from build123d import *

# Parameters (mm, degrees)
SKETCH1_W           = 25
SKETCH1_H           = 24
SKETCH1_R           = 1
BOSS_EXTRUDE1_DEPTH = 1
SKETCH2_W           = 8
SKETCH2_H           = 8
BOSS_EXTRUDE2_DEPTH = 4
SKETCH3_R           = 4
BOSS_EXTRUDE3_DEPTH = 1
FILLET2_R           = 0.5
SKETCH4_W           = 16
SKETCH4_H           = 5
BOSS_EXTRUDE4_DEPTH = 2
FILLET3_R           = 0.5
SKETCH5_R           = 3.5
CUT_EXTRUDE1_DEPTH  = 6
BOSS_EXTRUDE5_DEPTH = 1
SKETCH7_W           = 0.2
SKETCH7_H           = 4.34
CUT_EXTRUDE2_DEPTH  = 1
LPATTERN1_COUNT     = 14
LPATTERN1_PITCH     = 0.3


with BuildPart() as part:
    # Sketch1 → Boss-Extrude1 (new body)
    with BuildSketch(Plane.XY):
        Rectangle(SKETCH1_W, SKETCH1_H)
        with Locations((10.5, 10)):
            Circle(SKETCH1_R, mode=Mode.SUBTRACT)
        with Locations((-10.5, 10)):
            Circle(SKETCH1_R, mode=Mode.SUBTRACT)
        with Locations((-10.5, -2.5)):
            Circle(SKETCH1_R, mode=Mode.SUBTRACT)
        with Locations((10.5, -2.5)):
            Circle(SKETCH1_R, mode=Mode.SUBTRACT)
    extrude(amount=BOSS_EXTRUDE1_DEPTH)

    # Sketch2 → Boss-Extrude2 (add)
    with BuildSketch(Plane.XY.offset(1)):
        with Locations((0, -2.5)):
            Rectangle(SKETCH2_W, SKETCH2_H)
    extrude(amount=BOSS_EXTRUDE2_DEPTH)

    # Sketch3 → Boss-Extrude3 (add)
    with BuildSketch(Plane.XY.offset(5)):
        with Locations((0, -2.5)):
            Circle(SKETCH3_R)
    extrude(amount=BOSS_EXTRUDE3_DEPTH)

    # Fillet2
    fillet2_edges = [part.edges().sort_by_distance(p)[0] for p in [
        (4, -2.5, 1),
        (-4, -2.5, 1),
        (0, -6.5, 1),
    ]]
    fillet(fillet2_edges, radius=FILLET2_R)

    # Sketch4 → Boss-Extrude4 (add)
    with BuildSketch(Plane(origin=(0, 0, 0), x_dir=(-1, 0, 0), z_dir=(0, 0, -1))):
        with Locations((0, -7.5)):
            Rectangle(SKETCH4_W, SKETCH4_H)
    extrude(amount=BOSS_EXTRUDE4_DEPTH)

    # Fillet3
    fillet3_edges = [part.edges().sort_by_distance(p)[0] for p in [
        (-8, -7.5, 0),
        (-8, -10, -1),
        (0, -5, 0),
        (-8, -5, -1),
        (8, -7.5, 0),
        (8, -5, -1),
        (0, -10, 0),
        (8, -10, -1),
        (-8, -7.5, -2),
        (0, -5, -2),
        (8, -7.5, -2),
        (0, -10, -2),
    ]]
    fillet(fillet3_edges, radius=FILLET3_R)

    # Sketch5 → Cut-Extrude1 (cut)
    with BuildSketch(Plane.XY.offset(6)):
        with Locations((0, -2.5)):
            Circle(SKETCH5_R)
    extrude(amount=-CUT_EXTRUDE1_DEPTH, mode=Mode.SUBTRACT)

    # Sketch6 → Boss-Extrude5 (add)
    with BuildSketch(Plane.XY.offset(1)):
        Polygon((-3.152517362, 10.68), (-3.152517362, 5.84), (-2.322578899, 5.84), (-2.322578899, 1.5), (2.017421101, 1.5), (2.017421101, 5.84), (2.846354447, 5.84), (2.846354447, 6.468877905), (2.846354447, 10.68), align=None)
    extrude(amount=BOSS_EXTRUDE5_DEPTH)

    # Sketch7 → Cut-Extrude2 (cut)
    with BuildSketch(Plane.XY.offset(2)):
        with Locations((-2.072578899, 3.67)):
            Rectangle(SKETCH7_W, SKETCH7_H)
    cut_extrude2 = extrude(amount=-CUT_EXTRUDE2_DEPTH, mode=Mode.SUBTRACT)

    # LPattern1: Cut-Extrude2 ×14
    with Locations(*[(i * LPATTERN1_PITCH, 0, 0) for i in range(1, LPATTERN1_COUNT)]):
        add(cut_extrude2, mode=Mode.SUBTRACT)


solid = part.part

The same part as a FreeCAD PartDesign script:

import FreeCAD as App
import Part
import Sketcher


def edges_at(feature, points):
    """Names of the edges that pass closest to the given points."""
    edges = feature.Shape.Edges
    near = lambda p: min(range(len(edges)), key=lambda i: edges[i].distToShape(Part.Vertex(*p))[0])
    return sorted({f"Edge{near(p) + 1}" for p in points})

doc = App.newDocument("Part")
body = doc.addObject("PartDesign::Body", "Body")

sketch1 = body.newObject("Sketcher::SketchObject", "Sketch")
sketch1.AttachmentSupport = (doc.getObject("XY_Plane"), [""])
sketch1.MapMode = "FlatFace"
sketch1.addGeometry(Part.LineSegment(App.Vector(-12.5, 12, 0), App.Vector(-12.5, -12, 0)), False)
sketch1.addGeometry(Part.LineSegment(App.Vector(-12.5, -12, 0), App.Vector(12.5, -12, 0)), False)
sketch1.addGeometry(Part.LineSegment(App.Vector(12.5, -12, 0), App.Vector(12.5, 12, 0)), False)
sketch1.addGeometry(Part.LineSegment(App.Vector(12.5, 12, 0), App.Vector(-12.5, 12, 0)), False)
sketch1.addGeometry(Part.Circle(App.Vector(-10.5, -2.5, 0), App.Vector(0, 0, 1), 1), False)
sketch1.addGeometry(Part.Circle(App.Vector(10.5, -2.5, 0), App.Vector(0, 0, 1), 1), False)
sketch1.addGeometry(Part.Circle(App.Vector(-10.5, 10, 0), App.Vector(0, 0, 1), 1), False)
sketch1.addGeometry(Part.Circle(App.Vector(10.5, 10, 0), App.Vector(0, 0, 1), 1), False)
sketch1.addConstraint(Sketcher.Constraint("Coincident", 0, 2, 1, 1))
sketch1.addConstraint(Sketcher.Constraint("Coincident", 1, 2, 2, 1))
sketch1.addConstraint(Sketcher.Constraint("Coincident", 2, 2, 3, 1))
sketch1.addConstraint(Sketcher.Constraint("Coincident", 3, 2, 0, 1))
sketch1.addConstraint(Sketcher.Constraint("Vertical", 0))
sketch1.addConstraint(Sketcher.Constraint("Horizontal", 1))
sketch1.addConstraint(Sketcher.Constraint("Vertical", 2))
sketch1.addConstraint(Sketcher.Constraint("Horizontal", 3))
sketch1.addConstraint(Sketcher.Constraint("Equal", 4, 5))
sketch1.addConstraint(Sketcher.Constraint("Equal", 5, 6))
sketch1.addConstraint(Sketcher.Constraint("Equal", 6, 7))
sketch1.addConstraint(Sketcher.Constraint("Symmetric", 0, 2, 2, 2, -1, 1))
sketch1.addConstraint(Sketcher.Constraint("Symmetric", 4, 3, 5, 3, -2))
sketch1.addConstraint(Sketcher.Constraint("Symmetric", 6, 3, 7, 3, -2))
sketch1.addConstraint(Sketcher.Constraint("Vertical", 4, 3, 6, 3))
sketch1.addConstraint(Sketcher.Constraint("Diameter", 4, 2.0))
sketch1.addConstraint(Sketcher.Constraint("DistanceX", 1, 1, 1, 2, 25.0))
sketch1.addConstraint(Sketcher.Constraint("DistanceY", 0, 2, 0, 1, 24.0))
sketch1.addConstraint(Sketcher.Constraint("DistanceY", -1, 1, 6, 3, 10.0))
sketch1.addConstraint(Sketcher.Constraint("DistanceX", 4, 3, 5, 3, 21.0))
sketch1.addConstraint(Sketcher.Constraint("DistanceY", 4, 3, -1, 1, 2.5))
pad1 = body.newObject("PartDesign::Pad", "Pad")
pad1.Profile = sketch1
pad1.Length = 1

sketch2 = body.newObject("Sketcher::SketchObject", "Sketch001")
sketch2.AttachmentSupport = (doc.getObject("XY_Plane"), [""])
sketch2.MapMode = "FlatFace"
sketch2.AttachmentOffset = App.Placement(App.Vector(0, 0, 1), App.Rotation())
sketch2.addGeometry(Part.LineSegment(App.Vector(-4, 1.5, 0), App.Vector(-4, -6.5, 0)), False)
sketch2.addGeometry(Part.LineSegment(App.Vector(-4, -6.5, 0), App.Vector(4, -6.5, 0)), False)
sketch2.addGeometry(Part.LineSegment(App.Vector(4, -6.5, 0), App.Vector(4, 1.5, 0)), False)
sketch2.addGeometry(Part.LineSegment(App.Vector(4, 1.5, 0), App.Vector(-4, 1.5, 0)), False)
sketch2.addConstraint(Sketcher.Constraint("Coincident", 0, 2, 1, 1))
sketch2.addConstraint(Sketcher.Constraint("Coincident", 1, 2, 2, 1))
sketch2.addConstraint(Sketcher.Constraint("Coincident", 2, 2, 3, 1))
sketch2.addConstraint(Sketcher.Constraint("Coincident", 3, 2, 0, 1))
sketch2.addConstraint(Sketcher.Constraint("Vertical", 0))
sketch2.addConstraint(Sketcher.Constraint("Horizontal", 1))
sketch2.addConstraint(Sketcher.Constraint("Vertical", 2))
sketch2.addConstraint(Sketcher.Constraint("Horizontal", 3))
sketch2.addConstraint(Sketcher.Constraint("Equal", 3, 0))
sketch2.addConstraint(Sketcher.Constraint("DistanceX", 1, 1, 1, 2, 8.0))
sketch2.addConstraint(Sketcher.Constraint("DistanceX", 0, 2, -1, 1, 4.0))
sketch2.addConstraint(Sketcher.Constraint("DistanceY", 0, 2, -1, 1, 6.5))
pad2 = body.newObject("PartDesign::Pad", "Pad001")
pad2.Profile = sketch2
pad2.Length = 4

sketch3 = body.newObject("Sketcher::SketchObject", "Sketch002")
sketch3.AttachmentSupport = (doc.getObject("XY_Plane"), [""])
sketch3.MapMode = "FlatFace"
sketch3.AttachmentOffset = App.Placement(App.Vector(0, 0, 5), App.Rotation())
sketch3.addGeometry(Part.Circle(App.Vector(0, -2.5, 0), App.Vector(0, 0, 1), 4), False)
sketch3.addConstraint(Sketcher.Constraint("PointOnObject", 0, 3, -2))
sketch3.addConstraint(Sketcher.Constraint("Diameter", 0, 8.0))
sketch3.addConstraint(Sketcher.Constraint("DistanceY", 0, 3, -1, 1, 2.5))
pad3 = body.newObject("PartDesign::Pad", "Pad002")
pad3.Profile = sketch3
pad3.Length = 1
doc.recompute()

fillet = body.newObject("PartDesign::Fillet", "Fillet")
fillet.Base = (pad3, edges_at(pad3, [(4, -2.5, 1), (-4, -2.5, 1), (0, -6.5, 1)]))
fillet.Radius = 0.5

sketch4 = body.newObject("Sketcher::SketchObject", "Sketch003")
sketch4.AttachmentSupport = (doc.getObject("XY_Plane"), [""])
sketch4.MapMode = "FlatFace"
sketch4.addGeometry(Part.LineSegment(App.Vector(8, -5, 0), App.Vector(8, -10, 0)), False)
sketch4.addGeometry(Part.LineSegment(App.Vector(8, -10, 0), App.Vector(-8, -10, 0)), False)
sketch4.addGeometry(Part.LineSegment(App.Vector(-8, -10, 0), App.Vector(-8, -5, 0)), False)
sketch4.addGeometry(Part.LineSegment(App.Vector(-8, -5, 0), App.Vector(8, -5, 0)), False)
sketch4.addConstraint(Sketcher.Constraint("Coincident", 0, 2, 1, 1))
sketch4.addConstraint(Sketcher.Constraint("Coincident", 1, 2, 2, 1))
sketch4.addConstraint(Sketcher.Constraint("Coincident", 2, 2, 3, 1))
sketch4.addConstraint(Sketcher.Constraint("Coincident", 3, 2, 0, 1))
sketch4.addConstraint(Sketcher.Constraint("Vertical", 0))
sketch4.addConstraint(Sketcher.Constraint("Horizontal", 1))
sketch4.addConstraint(Sketcher.Constraint("Vertical", 2))
sketch4.addConstraint(Sketcher.Constraint("Horizontal", 3))
sketch4.addConstraint(Sketcher.Constraint("DistanceX", 1, 2, 1, 1, 16.0))
sketch4.addConstraint(Sketcher.Constraint("DistanceY", 0, 2, 0, 1, 5.0))
sketch4.addConstraint(Sketcher.Constraint("DistanceX", -1, 1, 0, 2, 8.0))
sketch4.addConstraint(Sketcher.Constraint("DistanceY", 0, 2, -1, 1, 10.0))
pad4 = body.newObject("PartDesign::Pad", "Pad003")
pad4.Profile = sketch4
pad4.Length = 2
pad4.Reversed = True
doc.recompute()

fillet2 = body.newObject("PartDesign::Fillet", "Fillet001")
fillet2.Base = (pad4, edges_at(pad4, [
    (-8, -7.5, 0),
    (-8, -10, -1),
    (0, -5, 0),
    (-8, -5, -1),
    (8, -7.5, 0),
    (8, -5, -1),
    (0, -10, 0),
    (8, -10, -1),
    (-8, -7.5, -2),
    (0, -5, -2),
    (8, -7.5, -2),
    (0, -10, -2),
]))
fillet2.Radius = 0.5

sketch5 = body.newObject("Sketcher::SketchObject", "Sketch004")
sketch5.AttachmentSupport = (doc.getObject("XY_Plane"), [""])
sketch5.MapMode = "FlatFace"
sketch5.AttachmentOffset = App.Placement(App.Vector(0, 0, 6), App.Rotation())
sketch5.addGeometry(Part.Circle(App.Vector(0, -2.5, 0), App.Vector(0, 0, 1), 3.5), False)
sketch5.addConstraint(Sketcher.Constraint("PointOnObject", 0, 3, -2))
sketch5.addConstraint(Sketcher.Constraint("Diameter", 0, 7.0))
sketch5.addConstraint(Sketcher.Constraint("DistanceY", 0, 3, -1, 1, 2.5))
pocket1 = body.newObject("PartDesign::Pocket", "Pocket")
pocket1.Profile = sketch5
pocket1.Length = 6

sketch6 = body.newObject("Sketcher::SketchObject", "Sketch005")
sketch6.AttachmentSupport = (doc.getObject("XY_Plane"), [""])
sketch6.MapMode = "FlatFace"
sketch6.AttachmentOffset = App.Placement(App.Vector(0, 0, 1), App.Rotation())
sketch6.addGeometry(Part.LineSegment(App.Vector(-3.152517, 10.68, 0), App.Vector(-3.152517, 5.84, 0)), False)
sketch6.addGeometry(Part.LineSegment(App.Vector(-3.152517, 5.84, 0), App.Vector(-2.322579, 5.84, 0)), False)
sketch6.addGeometry(Part.LineSegment(App.Vector(-2.322579, 5.84, 0), App.Vector(-2.322579, 1.5, 0)), False)
sketch6.addGeometry(Part.LineSegment(App.Vector(-2.322579, 1.5, 0), App.Vector(2.017421, 1.5, 0)), False)
sketch6.addGeometry(Part.LineSegment(App.Vector(2.017421, 1.5, 0), App.Vector(2.017421, 5.84, 0)), False)
sketch6.addGeometry(Part.LineSegment(App.Vector(2.017421, 5.84, 0), App.Vector(2.846354, 5.84, 0)), False)
sketch6.addGeometry(Part.LineSegment(App.Vector(2.846354, 5.84, 0), App.Vector(2.846354, 10.68, 0)), False)
sketch6.addGeometry(Part.LineSegment(App.Vector(2.846354, 10.68, 0), App.Vector(-3.152517, 10.68, 0)), False)
sketch6.addConstraint(Sketcher.Constraint("Coincident", 0, 2, 1, 1))
sketch6.addConstraint(Sketcher.Constraint("Coincident", 1, 2, 2, 1))
sketch6.addConstraint(Sketcher.Constraint("Coincident", 2, 2, 3, 1))
sketch6.addConstraint(Sketcher.Constraint("Coincident", 3, 2, 4, 1))
sketch6.addConstraint(Sketcher.Constraint("Coincident", 4, 2, 5, 1))
sketch6.addConstraint(Sketcher.Constraint("Coincident", 5, 2, 6, 1))
sketch6.addConstraint(Sketcher.Constraint("Coincident", 6, 2, 7, 1))
sketch6.addConstraint(Sketcher.Constraint("Coincident", 7, 2, 0, 1))
sketch6.addConstraint(Sketcher.Constraint("Vertical", 0))
sketch6.addConstraint(Sketcher.Constraint("Horizontal", 1))
sketch6.addConstraint(Sketcher.Constraint("Vertical", 2))
sketch6.addConstraint(Sketcher.Constraint("Horizontal", 3))
sketch6.addConstraint(Sketcher.Constraint("Vertical", 4))
sketch6.addConstraint(Sketcher.Constraint("Horizontal", 5))
sketch6.addConstraint(Sketcher.Constraint("Vertical", 6))
sketch6.addConstraint(Sketcher.Constraint("Horizontal", 7))
sketch6.addConstraint(Sketcher.Constraint("Horizontal", 1, 2, 4, 2))
sketch6.addConstraint(Sketcher.Constraint("Equal", 3, 2))
sketch6.addConstraint(Sketcher.Constraint("DistanceX", 3, 1, 3, 2, 4.34))
sketch6.addConstraint(Sketcher.Constraint("DistanceY", 0, 2, 0, 1, 4.84))
sketch6.addConstraint(Sketcher.Constraint("DistanceY", -1, 1, 2, 2, 1.5))
sketch6.addConstraint(Sketcher.Constraint("DistanceX", 1, 1, 1, 2, 0.829938))
sketch6.addConstraint(Sketcher.Constraint("DistanceX", 7, 2, 7, 1, 5.998872))
sketch6.addConstraint(Sketcher.Constraint("DistanceX", 1, 2, -1, 1, 2.322579))
pad5 = body.newObject("PartDesign::Pad", "Pad004")
pad5.Profile = sketch6
pad5.Length = 1

sketch7 = body.newObject("Sketcher::SketchObject", "Sketch006")
sketch7.AttachmentSupport = (doc.getObject("XY_Plane"), [""])
sketch7.MapMode = "FlatFace"
sketch7.AttachmentOffset = App.Placement(App.Vector(0, 0, 2), App.Rotation())
sketch7.addGeometry(Part.LineSegment(App.Vector(-2.172579, 5.84, 0), App.Vector(-2.172579, 1.5, 0)), False)
sketch7.addGeometry(Part.LineSegment(App.Vector(-2.172579, 1.5, 0), App.Vector(-1.972579, 1.5, 0)), False)
sketch7.addGeometry(Part.LineSegment(App.Vector(-1.972579, 1.5, 0), App.Vector(-1.972579, 5.84, 0)), False)
sketch7.addGeometry(Part.LineSegment(App.Vector(-1.972579, 5.84, 0), App.Vector(-2.172579, 5.84, 0)), False)
sketch7.addConstraint(Sketcher.Constraint("Coincident", 0, 2, 1, 1))
sketch7.addConstraint(Sketcher.Constraint("Coincident", 1, 2, 2, 1))
sketch7.addConstraint(Sketcher.Constraint("Coincident", 2, 2, 3, 1))
sketch7.addConstraint(Sketcher.Constraint("Coincident", 3, 2, 0, 1))
sketch7.addConstraint(Sketcher.Constraint("Vertical", 0))
sketch7.addConstraint(Sketcher.Constraint("Horizontal", 1))
sketch7.addConstraint(Sketcher.Constraint("Vertical", 2))
sketch7.addConstraint(Sketcher.Constraint("Horizontal", 3))
sketch7.addConstraint(Sketcher.Constraint("DistanceX", 1, 1, 1, 2, 0.2))
sketch7.addConstraint(Sketcher.Constraint("DistanceY", 0, 2, 0, 1, 4.34))
sketch7.addConstraint(Sketcher.Constraint("DistanceY", -1, 1, 0, 2, 1.5))
sketch7.addConstraint(Sketcher.Constraint("DistanceX", 0, 2, -1, 1, 2.172579))
pocket2 = body.newObject("PartDesign::Pocket", "Pocket001")
pocket2.Profile = sketch7
pocket2.Length = 1
doc.recompute()

linearpattern = body.newObject("PartDesign::LinearPattern", "LinearPattern")
linearpattern.Originals = [pocket2]
linearpattern.Direction = (doc.getObject("X_Axis"), [""])
linearpattern.Mode = "offset"
linearpattern.Offset = 0.3
linearpattern.Occurrences = 14
body.Tip = linearpattern

doc.recompute()
